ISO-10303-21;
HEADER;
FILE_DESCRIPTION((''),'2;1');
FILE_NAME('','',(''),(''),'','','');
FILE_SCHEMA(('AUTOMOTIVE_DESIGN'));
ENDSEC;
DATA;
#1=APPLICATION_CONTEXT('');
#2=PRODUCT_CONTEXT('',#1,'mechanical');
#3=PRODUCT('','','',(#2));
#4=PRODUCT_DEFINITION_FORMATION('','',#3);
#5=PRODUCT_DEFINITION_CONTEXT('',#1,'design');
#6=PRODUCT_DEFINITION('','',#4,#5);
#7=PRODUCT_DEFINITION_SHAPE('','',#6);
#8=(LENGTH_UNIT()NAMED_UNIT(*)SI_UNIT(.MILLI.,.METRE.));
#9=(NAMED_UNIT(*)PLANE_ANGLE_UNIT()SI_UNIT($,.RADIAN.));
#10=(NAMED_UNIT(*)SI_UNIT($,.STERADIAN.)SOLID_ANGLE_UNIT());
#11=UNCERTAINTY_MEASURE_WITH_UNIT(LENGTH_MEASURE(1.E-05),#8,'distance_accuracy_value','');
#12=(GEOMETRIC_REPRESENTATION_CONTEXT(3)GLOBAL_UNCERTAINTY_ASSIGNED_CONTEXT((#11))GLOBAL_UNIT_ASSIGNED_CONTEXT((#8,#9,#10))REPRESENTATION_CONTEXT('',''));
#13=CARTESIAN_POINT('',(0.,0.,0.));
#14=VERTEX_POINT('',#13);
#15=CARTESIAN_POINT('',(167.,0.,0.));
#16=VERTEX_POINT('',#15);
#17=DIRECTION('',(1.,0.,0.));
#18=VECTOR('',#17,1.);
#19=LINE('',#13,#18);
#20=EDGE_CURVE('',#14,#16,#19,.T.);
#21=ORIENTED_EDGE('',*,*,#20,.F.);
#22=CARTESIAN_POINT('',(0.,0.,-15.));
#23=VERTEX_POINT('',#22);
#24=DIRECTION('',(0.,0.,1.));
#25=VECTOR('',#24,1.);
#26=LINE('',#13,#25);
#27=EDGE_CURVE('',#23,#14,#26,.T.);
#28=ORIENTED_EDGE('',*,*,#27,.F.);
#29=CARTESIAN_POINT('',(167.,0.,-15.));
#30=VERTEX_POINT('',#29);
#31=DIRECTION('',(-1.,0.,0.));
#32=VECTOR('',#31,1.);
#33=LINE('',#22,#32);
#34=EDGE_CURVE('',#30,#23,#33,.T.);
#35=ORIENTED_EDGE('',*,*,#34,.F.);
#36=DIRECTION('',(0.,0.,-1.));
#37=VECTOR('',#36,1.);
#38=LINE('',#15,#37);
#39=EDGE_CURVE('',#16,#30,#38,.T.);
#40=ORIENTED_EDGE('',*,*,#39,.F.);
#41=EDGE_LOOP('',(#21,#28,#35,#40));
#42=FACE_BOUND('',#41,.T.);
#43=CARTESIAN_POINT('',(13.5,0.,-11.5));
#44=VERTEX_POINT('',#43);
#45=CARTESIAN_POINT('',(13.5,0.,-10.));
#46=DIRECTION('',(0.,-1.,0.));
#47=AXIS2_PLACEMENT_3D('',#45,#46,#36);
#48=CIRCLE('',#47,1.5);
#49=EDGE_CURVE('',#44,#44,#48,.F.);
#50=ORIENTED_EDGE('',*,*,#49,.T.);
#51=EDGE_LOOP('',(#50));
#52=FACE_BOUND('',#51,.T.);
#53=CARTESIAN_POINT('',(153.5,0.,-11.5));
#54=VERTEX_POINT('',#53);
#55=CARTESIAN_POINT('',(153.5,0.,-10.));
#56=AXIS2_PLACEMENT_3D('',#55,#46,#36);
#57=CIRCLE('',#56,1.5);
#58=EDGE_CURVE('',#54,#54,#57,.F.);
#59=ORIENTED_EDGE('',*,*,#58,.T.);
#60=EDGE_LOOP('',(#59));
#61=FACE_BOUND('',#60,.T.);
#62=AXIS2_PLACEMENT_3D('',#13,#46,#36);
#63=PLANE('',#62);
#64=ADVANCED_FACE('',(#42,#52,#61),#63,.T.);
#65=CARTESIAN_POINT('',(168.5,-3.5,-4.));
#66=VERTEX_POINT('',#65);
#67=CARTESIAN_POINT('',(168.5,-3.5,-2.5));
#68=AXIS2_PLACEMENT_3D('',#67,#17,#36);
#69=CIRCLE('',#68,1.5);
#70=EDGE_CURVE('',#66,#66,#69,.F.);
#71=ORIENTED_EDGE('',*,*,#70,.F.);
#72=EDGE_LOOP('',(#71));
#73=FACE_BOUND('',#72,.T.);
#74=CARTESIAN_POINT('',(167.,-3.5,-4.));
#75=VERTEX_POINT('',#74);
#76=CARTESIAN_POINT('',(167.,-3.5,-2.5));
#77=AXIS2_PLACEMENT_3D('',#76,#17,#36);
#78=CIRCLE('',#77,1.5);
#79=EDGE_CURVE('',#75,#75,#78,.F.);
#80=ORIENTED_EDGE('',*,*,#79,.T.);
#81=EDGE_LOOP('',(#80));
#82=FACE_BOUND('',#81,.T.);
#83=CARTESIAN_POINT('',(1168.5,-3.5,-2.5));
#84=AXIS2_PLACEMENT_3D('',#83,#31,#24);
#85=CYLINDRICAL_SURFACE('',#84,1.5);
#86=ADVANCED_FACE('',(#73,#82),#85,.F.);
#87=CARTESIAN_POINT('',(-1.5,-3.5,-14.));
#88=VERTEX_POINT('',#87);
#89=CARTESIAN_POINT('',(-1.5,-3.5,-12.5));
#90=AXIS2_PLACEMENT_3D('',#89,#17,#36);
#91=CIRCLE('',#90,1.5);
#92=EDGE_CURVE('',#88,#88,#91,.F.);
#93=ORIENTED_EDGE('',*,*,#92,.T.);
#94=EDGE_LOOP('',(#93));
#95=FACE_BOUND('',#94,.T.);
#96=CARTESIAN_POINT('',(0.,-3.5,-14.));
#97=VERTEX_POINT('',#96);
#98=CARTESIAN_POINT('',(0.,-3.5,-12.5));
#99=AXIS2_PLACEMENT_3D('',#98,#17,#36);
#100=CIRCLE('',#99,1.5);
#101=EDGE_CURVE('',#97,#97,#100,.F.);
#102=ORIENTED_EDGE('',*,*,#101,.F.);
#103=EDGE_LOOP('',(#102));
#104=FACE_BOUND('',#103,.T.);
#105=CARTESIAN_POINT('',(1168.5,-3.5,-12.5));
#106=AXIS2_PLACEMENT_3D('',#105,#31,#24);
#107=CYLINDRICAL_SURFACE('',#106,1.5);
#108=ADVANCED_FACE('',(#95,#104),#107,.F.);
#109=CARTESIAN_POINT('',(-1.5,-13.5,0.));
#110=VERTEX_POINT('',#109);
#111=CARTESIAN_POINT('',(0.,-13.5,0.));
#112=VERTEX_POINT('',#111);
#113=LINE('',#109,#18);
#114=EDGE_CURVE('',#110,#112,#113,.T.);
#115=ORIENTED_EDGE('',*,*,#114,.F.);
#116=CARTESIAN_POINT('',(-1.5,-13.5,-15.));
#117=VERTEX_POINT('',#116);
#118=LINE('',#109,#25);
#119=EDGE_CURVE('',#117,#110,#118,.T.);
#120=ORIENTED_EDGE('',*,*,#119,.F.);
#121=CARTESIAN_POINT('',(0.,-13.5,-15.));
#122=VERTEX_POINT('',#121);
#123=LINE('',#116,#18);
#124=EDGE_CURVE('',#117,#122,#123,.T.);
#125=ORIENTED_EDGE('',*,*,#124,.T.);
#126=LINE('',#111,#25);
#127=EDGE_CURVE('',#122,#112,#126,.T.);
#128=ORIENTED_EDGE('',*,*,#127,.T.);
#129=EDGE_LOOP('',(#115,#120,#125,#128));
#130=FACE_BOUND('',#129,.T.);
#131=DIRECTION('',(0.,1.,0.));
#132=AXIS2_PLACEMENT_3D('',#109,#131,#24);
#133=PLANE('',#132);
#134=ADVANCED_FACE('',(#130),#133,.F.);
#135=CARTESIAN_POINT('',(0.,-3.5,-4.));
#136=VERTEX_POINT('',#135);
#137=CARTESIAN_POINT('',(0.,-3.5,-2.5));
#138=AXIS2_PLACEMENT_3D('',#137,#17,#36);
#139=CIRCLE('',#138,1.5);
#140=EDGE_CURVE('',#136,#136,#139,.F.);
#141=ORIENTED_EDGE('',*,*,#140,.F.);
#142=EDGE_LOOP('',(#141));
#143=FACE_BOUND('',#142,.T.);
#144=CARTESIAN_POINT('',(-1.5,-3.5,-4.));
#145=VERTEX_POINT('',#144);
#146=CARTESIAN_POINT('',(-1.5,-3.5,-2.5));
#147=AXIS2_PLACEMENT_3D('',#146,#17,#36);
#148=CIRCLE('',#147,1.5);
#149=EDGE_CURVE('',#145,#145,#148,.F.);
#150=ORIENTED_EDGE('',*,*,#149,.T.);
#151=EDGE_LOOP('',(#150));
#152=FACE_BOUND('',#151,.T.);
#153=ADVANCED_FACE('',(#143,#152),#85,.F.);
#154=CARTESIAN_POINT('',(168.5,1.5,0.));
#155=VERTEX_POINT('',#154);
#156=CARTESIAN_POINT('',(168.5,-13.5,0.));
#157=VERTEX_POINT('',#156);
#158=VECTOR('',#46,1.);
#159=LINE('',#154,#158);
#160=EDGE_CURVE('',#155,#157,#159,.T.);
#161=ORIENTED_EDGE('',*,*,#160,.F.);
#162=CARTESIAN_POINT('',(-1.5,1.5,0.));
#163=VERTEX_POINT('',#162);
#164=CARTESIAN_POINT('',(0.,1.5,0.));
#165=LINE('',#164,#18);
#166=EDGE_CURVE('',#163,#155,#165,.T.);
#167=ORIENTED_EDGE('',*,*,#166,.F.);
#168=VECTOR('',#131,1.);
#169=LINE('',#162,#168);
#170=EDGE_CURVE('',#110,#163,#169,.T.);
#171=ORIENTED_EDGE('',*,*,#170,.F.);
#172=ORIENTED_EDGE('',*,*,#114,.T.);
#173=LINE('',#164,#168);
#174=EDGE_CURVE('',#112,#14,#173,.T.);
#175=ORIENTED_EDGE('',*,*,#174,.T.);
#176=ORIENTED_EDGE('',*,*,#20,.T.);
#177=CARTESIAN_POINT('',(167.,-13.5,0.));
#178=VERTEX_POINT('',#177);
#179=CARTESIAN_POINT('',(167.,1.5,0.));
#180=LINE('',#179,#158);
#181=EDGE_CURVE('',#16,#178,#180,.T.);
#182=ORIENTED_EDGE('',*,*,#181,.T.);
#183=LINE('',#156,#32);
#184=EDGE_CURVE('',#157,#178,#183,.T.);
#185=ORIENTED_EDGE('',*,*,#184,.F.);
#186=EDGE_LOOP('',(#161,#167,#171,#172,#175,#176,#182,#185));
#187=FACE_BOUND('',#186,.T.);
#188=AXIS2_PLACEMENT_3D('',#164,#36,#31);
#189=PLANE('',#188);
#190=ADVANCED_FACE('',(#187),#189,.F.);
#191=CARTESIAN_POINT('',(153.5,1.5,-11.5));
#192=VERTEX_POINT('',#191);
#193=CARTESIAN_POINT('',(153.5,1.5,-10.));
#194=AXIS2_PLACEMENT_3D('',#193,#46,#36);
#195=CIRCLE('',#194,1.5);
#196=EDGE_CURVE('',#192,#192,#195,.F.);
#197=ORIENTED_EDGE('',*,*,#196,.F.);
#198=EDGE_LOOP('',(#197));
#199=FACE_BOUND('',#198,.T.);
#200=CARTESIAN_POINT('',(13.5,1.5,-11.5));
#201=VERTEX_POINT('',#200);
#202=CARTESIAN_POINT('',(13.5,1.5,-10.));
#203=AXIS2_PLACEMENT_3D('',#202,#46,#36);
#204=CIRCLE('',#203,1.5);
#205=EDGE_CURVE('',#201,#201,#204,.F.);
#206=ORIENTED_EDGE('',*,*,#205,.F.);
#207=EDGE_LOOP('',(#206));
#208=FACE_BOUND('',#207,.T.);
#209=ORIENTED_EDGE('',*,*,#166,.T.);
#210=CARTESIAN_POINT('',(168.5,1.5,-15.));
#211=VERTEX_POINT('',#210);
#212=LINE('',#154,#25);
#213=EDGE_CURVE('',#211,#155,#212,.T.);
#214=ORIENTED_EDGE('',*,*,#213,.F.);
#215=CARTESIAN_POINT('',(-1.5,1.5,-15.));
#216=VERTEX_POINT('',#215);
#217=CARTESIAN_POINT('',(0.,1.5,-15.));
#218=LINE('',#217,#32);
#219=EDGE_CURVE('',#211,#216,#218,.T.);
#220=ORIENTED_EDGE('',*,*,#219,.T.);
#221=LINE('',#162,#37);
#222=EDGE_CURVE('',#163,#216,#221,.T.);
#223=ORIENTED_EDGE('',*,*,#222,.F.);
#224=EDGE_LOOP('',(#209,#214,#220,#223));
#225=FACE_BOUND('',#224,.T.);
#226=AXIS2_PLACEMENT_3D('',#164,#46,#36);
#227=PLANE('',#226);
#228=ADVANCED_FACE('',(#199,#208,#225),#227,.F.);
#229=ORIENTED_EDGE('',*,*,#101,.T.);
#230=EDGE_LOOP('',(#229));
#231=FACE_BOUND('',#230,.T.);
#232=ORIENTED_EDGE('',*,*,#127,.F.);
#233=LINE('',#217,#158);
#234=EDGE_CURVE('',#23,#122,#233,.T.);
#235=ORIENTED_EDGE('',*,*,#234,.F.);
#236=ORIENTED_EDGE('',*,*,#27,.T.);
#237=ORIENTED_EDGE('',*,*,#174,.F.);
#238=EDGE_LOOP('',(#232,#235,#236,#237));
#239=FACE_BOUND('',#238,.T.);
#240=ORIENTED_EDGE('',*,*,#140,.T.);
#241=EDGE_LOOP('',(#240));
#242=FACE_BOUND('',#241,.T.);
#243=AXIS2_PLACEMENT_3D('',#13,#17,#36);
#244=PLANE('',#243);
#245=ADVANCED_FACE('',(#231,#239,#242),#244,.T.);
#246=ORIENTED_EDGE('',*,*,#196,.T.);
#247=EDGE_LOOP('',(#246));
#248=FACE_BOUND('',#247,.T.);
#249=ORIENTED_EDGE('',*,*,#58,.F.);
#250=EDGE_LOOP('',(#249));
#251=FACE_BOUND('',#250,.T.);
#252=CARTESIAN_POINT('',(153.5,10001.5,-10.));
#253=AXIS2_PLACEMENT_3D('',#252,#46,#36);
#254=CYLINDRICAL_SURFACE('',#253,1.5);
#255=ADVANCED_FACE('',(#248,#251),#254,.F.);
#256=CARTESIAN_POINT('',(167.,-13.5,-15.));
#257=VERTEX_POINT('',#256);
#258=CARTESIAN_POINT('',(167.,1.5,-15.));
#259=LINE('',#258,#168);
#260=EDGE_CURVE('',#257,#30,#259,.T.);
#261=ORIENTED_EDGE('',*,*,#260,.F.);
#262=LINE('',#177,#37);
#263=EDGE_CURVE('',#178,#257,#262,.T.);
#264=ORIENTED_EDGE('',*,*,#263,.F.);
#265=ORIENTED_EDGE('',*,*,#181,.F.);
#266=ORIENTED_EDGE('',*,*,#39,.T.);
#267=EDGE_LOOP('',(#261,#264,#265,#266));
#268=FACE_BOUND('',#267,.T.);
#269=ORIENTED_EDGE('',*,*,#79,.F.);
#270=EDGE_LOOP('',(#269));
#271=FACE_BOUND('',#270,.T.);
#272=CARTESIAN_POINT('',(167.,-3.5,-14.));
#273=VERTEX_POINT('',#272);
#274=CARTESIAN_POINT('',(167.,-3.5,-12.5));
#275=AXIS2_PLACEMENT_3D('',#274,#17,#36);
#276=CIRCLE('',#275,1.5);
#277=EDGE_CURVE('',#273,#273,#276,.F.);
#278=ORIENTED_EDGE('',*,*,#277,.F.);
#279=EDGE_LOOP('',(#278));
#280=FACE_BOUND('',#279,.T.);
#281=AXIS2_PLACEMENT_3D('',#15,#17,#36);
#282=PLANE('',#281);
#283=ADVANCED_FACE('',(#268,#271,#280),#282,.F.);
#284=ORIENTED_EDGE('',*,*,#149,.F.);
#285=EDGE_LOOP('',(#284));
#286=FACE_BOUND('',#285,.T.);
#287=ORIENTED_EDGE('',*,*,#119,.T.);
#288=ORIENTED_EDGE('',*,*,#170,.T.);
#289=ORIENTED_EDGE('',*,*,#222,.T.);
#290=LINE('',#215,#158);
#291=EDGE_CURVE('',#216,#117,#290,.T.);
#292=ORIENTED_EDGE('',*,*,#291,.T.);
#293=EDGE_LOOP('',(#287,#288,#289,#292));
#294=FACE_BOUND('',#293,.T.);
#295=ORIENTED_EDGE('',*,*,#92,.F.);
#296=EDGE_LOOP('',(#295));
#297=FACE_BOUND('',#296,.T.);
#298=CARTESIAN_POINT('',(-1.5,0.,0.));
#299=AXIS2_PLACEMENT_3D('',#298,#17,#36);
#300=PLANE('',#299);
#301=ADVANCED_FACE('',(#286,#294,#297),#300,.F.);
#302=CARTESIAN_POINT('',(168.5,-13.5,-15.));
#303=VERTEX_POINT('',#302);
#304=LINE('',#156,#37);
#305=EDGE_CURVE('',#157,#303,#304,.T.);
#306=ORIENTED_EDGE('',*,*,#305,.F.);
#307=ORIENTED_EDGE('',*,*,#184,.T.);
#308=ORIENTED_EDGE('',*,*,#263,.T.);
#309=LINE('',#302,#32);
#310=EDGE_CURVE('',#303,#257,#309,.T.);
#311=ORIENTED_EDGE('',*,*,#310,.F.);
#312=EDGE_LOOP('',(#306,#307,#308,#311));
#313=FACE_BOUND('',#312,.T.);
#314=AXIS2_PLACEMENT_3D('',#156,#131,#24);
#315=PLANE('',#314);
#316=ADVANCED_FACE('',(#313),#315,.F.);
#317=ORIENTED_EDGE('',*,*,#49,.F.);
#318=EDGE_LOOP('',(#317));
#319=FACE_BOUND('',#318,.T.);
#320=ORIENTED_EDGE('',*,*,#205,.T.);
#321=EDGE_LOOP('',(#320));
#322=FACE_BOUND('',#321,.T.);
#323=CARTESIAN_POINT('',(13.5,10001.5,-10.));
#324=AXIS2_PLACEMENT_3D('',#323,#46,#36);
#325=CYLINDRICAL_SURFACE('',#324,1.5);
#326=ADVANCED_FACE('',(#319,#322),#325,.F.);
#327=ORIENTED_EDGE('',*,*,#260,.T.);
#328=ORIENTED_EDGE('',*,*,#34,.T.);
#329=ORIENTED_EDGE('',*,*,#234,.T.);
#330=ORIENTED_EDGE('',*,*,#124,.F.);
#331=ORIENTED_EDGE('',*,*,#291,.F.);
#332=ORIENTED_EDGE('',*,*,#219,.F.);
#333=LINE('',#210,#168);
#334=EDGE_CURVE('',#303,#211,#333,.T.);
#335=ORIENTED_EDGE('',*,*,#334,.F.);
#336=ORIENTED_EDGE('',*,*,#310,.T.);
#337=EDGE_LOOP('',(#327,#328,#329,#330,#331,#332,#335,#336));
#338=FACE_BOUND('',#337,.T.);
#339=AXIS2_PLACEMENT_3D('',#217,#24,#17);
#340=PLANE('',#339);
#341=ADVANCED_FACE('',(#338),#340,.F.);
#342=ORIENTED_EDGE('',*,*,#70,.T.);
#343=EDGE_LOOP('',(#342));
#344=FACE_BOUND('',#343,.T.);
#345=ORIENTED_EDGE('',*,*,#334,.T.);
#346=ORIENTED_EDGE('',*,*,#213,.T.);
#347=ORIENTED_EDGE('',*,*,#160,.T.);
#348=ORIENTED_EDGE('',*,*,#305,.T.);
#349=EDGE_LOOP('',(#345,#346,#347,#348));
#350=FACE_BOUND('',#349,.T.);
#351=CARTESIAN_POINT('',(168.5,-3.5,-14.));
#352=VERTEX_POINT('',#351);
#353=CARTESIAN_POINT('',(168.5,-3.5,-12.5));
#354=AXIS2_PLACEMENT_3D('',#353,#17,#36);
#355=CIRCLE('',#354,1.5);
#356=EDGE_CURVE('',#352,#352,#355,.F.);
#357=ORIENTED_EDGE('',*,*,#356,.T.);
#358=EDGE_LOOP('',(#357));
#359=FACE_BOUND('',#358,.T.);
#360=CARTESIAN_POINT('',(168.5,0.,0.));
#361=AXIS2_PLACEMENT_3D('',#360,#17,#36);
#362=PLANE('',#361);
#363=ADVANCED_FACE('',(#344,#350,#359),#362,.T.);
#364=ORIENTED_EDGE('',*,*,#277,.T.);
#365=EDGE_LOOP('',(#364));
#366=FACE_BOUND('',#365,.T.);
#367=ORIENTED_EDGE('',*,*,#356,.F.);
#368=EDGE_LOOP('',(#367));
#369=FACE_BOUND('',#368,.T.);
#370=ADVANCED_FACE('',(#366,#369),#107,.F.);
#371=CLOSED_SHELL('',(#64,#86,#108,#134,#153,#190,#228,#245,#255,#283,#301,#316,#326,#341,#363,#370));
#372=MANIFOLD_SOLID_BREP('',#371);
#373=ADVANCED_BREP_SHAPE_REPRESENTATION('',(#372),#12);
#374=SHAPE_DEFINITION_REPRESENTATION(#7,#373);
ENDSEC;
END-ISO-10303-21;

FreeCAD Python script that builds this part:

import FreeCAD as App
import Part
import Sketcher
Q = App.Units.Quantity


def add_polygon(sketch, points):
    """Adds a closed chain of lines whose ends are joined by coincident constraints."""
    first, n = sketch.GeometryCount, len(points)
    for a, b in zip(points, points[1:] + points[:1]):
        sketch.addGeometry(Part.LineSegment(App.Vector(*a, 0), App.Vector(*b, 0)), False)
    for i in range(n):
        sketch.addConstraint(Sketcher.Constraint("Coincident", first + i, 2, first + (i + 1) % n, 1))

doc = App.newDocument("Part")
body = doc.addObject("PartDesign::Body", "Body")

# Sketch on XZ plane
sketch1 = body.newObject("Sketcher::SketchObject", "Sketch")
sketch1.AttachmentSupport = (doc.getObject("XZ_Plane"), [""])
sketch1.MapMode = "FlatFace"
add_polygon(sketch1, [(0, -15), (0, 0), (167, 0), (167, -15)])  # lines 0-3
sketch1.addConstraint(Sketcher.Constraint("Vertical", 0))
sketch1.addConstraint(Sketcher.Constraint("Horizontal", 1))
sketch1.addConstraint(Sketcher.Constraint("Vertical", 2))
sketch1.addConstraint(Sketcher.Constraint("Horizontal", 3))
sketch1.addConstraint(Sketcher.Constraint("Coincident", 0, 2, -1, 1))
sketch1.addConstraint(Sketcher.Constraint("DistanceX", 1, 1, 1, 2, Q("167 mm")))
sketch1.addConstraint(Sketcher.Constraint("DistanceY", 0, 1, 0, 2, Q("15 mm")))
pad1 = body.newObject("PartDesign::Pad", "Pad")
pad1.Profile = sketch1
pad1.Length = 1.5
pad1.Reversed = True

# Sketch on YZ plane
sketch2 = body.newObject("Sketcher::SketchObject", "Sketch001")
sketch2.AttachmentSupport = (doc.getObject("YZ_Plane"), [""])
sketch2.MapMode = "FlatFace"
sketch2.AttachmentOffset = App.Placement(App.Vector(0, 0, 167), App.Rotation())
add_polygon(sketch2, [(2, 0), (-14, 0), (-14, -15), (2, -15)])  # lines 0-3
sketch2.addConstraint(Sketcher.Constraint("Horizontal", 0))
sketch2.addConstraint(Sketcher.Constraint("Vertical", 1))
sketch2.addConstraint(Sketcher.Constraint("Horizontal", 2))
sketch2.addConstraint(Sketcher.Constraint("Vertical", 3))
sketch2.addConstraint(Sketcher.Constraint("PointOnObject", 0, 2, -1))
sketch2.addConstraint(Sketcher.Constraint("Equal", 2, 1))
sketch2.addConstraint(Sketcher.Constraint("DistanceX", 0, 2, 0, 1, Q("15 mm")))
sketch2.addConstraint(Sketcher.Constraint("DistanceX", 0, 2, -1, 1, Q("13.5 mm")))
pad2 = body.newObject("PartDesign::Pad", "Pad001")
pad2.Profile = sketch2
pad2.Length = 1.5

# Sketch on YZ plane
sketch3 = body.newObject("Sketcher::SketchObject", "Sketch002")
sketch3.AttachmentSupport = (doc.getObject("YZ_Plane"), [""])
sketch3.MapMode = "FlatFace"
add_polygon(sketch3, [(2, -15), (-14, -15), (-14, 0), (2, 0)])  # lines 0-3
sketch3.addConstraint(Sketcher.Constraint("Horizontal", 0))
sketch3.addConstraint(Sketcher.Constraint("Vertical", 1))
sketch3.addConstraint(Sketcher.Constraint("Horizontal", 2))
sketch3.addConstraint(Sketcher.Constraint("Vertical", 3))
sketch3.addConstraint(Sketcher.Constraint("PointOnObject", 1, 2, -1))
sketch3.addConstraint(Sketcher.Constraint("Equal", 2, 1))
sketch3.addConstraint(Sketcher.Constraint("DistanceX", 0, 2, 0, 1, Q("15 mm")))
sketch3.addConstraint(Sketcher.Constraint("DistanceX", 0, 2, -1, 1, Q("13.5 mm")))
pad3 = body.newObject("PartDesign::Pad", "Pad002")
pad3.Profile = sketch3
pad3.Length = 1.5
pad3.Reversed = True

# Sketch on YZ plane
sketch4 = body.newObject("Sketcher::SketchObject", "Sketch003")
sketch4.AttachmentSupport = (doc.getObject("YZ_Plane"), [""])
sketch4.MapMode = "FlatFace"
sketch4.AttachmentOffset = App.Placement(App.Vector(0, 0, 168.5), App.Rotation())
sketch4.addGeometry(Part.Circle(App.Vector(-3.5, -2.5, 0), App.Vector(0, 0, 1), 1.5), False)
sketch4.addGeometry(Part.Circle(App.Vector(-3.5, -12.5, 0), App.Vector(0, 0, 1), 1.5), False)
sketch4.addConstraint(Sketcher.Constraint("Equal", 0, 1))
sketch4.addConstraint(Sketcher.Constraint("Vertical", 0, 3, 1, 3))
sketch4.addConstraint(Sketcher.Constraint("Diameter", 0, Q("3 mm")))
sketch4.addConstraint(Sketcher.Constraint("DistanceY", 1, 3, 0, 3, Q("10 mm")))
sketch4.addConstraint(Sketcher.Constraint("DistanceX", 0, 3, -1, 1, Q("3.5 mm")))
sketch4.addConstraint(Sketcher.Constraint("DistanceY", 0, 3, -1, 1, Q("2.5 mm")))
pocket1 = body.newObject("PartDesign::Pocket", "Pocket")
pocket1.Profile = sketch4
pocket1.Type = "ThroughAll"
pocket1.Midplane = True

# Sketch on XZ plane
sketch5 = body.newObject("Sketcher::SketchObject", "Sketch004")
sketch5.AttachmentSupport = (doc.getObject("XZ_Plane"), [""])
sketch5.MapMode = "FlatFace"
sketch5.AttachmentOffset = App.Placement(App.Vector(0, 0, -1.5), App.Rotation())
sketch5.addGeometry(Part.Circle(App.Vector(13.5, -10, 0), App.Vector(0, 0, 1), 1.5), False)
sketch5.addGeometry(Part.Circle(App.Vector(153.5, -10, 0), App.Vector(0, 0, 1), 1.5), False)
sketch5.addConstraint(Sketcher.Constraint("Equal", 0, 1))
sketch5.addConstraint(Sketcher.Constraint("Horizontal", 0, 3, 1, 3))
sketch5.addConstraint(Sketcher.Constraint("Diameter", 0, Q("3 mm")))
sketch5.addConstraint(Sketcher.Constraint("DistanceY", 0, 3, -1, 1, Q("10 mm")))
sketch5.addConstraint(Sketcher.Constraint("DistanceX", 0, 3, 1, 3, Q("140 mm")))
sketch5.addConstraint(Sketcher.Constraint("DistanceX", -1, 1, 0, 3, Q("13.5 mm")))
pocket2 = body.newObject("PartDesign::Pocket", "Pocket001")
pocket2.Profile = sketch5
pocket2.Type = "ThroughAll"
pocket2.Midplane = True

doc.recompute()
